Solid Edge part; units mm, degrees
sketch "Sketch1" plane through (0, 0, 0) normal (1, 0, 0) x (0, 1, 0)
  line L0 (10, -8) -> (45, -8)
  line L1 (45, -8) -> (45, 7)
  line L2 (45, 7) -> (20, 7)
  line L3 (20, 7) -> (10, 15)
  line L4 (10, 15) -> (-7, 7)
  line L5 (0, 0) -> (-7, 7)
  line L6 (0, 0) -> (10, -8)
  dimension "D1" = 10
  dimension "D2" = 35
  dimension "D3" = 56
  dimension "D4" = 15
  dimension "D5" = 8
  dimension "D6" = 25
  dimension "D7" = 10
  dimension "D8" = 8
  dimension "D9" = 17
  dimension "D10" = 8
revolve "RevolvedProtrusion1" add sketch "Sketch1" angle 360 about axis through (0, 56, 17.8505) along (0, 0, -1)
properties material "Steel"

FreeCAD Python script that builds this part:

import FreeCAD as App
import Part
import Sketcher
Q = App.Units.Quantity

doc = App.newDocument("Part")
body = doc.addObject("PartDesign::Body", "Body")

# Sketch on YZ plane
sketch1 = body.newObject("Sketcher::SketchObject", "Sketch")
sketch1.AttachmentSupport = (doc.getObject("YZ_Plane"), [""])
sketch1.MapMode = "FlatFace"
sketch1.addGeometry([
    Part.LineSegment(App.Vector(0, 0, 0), App.Vector(10, -8, 0)),  # 0
    Part.LineSegment(App.Vector(10, -8, 0), App.Vector(45, -8, 0)),  # 1
    Part.LineSegment(App.Vector(45, -8, 0), App.Vector(45, 7, 0)),  # 2
    Part.LineSegment(App.Vector(45, 7, 0), App.Vector(20, 7, 0)),  # 3
    Part.LineSegment(App.Vector(20, 7, 0), App.Vector(10, 15, 0)),  # 4
    Part.LineSegment(App.Vector(10, 15, 0), App.Vector(-7, 7, 0)),  # 5
    Part.LineSegment(App.Vector(-7, 7, 0), App.Vector(0, 0, 0)),  # 6
], False)
sketch1.addGeometry(Part.LineSegment(App.Vector(56, 15, 0), App.Vector(56, -8, 0)), True)  # axis
sketch1.addConstraint([
    Sketcher.Constraint("Coincident", 0, 2, 1, 1),
    Sketcher.Constraint("Coincident", 1, 2, 2, 1),
    Sketcher.Constraint("Coincident", 2, 2, 3, 1),
    Sketcher.Constraint("Coincident", 3, 2, 4, 1),
    Sketcher.Constraint("Coincident", 4, 2, 5, 1),
    Sketcher.Constraint("Coincident", 5, 2, 6, 1),
    Sketcher.Constraint("Coincident", 6, 2, 0, 1),
    Sketcher.Constraint("Horizontal", 1),
    Sketcher.Constraint("Vertical", 2),
    Sketcher.Constraint("Horizontal", 3),
    Sketcher.Constraint("Vertical", 7),
    Sketcher.Constraint("Coincident", 6, 2, -1, 1),
    Sketcher.Constraint("Parallel", 0, 4),
    Sketcher.Constraint("Horizontal", 3, 2, 5, 2),
    Sketcher.Constraint("Horizontal", 4, 2, 7, 1),
    Sketcher.Constraint("Horizontal", 1, 2, 7, 2),
    Sketcher.Constraint("Vertical", 0, 2, 4, 2),
    Sketcher.Constraint("Equal", 0, 4),
    Sketcher.Constraint("Angle", 6, Q("-45 deg")),
    Sketcher.Constraint("DistanceX", -1, 1, 0, 2, Q("10 mm")),
    Sketcher.Constraint("DistanceX", -1, 1, 1, 2, Q("45 mm")),
    Sketcher.Constraint("DistanceY", 2, 1, 2, 2, Q("15 mm")),
    Sketcher.Constraint("DistanceY", 7, 2, 7, 1, Q("23 mm")),
    Sketcher.Constraint("DistanceX", -1, 1, 7, 1, Q("56 mm")),
])
revolution = body.newObject("PartDesign::Revolution", "Revolution")
revolution.Profile = sketch1
revolution.ReferenceAxis = (sketch1, ["Axis0"])
revolution.Angle = 360

doc.recompute()
